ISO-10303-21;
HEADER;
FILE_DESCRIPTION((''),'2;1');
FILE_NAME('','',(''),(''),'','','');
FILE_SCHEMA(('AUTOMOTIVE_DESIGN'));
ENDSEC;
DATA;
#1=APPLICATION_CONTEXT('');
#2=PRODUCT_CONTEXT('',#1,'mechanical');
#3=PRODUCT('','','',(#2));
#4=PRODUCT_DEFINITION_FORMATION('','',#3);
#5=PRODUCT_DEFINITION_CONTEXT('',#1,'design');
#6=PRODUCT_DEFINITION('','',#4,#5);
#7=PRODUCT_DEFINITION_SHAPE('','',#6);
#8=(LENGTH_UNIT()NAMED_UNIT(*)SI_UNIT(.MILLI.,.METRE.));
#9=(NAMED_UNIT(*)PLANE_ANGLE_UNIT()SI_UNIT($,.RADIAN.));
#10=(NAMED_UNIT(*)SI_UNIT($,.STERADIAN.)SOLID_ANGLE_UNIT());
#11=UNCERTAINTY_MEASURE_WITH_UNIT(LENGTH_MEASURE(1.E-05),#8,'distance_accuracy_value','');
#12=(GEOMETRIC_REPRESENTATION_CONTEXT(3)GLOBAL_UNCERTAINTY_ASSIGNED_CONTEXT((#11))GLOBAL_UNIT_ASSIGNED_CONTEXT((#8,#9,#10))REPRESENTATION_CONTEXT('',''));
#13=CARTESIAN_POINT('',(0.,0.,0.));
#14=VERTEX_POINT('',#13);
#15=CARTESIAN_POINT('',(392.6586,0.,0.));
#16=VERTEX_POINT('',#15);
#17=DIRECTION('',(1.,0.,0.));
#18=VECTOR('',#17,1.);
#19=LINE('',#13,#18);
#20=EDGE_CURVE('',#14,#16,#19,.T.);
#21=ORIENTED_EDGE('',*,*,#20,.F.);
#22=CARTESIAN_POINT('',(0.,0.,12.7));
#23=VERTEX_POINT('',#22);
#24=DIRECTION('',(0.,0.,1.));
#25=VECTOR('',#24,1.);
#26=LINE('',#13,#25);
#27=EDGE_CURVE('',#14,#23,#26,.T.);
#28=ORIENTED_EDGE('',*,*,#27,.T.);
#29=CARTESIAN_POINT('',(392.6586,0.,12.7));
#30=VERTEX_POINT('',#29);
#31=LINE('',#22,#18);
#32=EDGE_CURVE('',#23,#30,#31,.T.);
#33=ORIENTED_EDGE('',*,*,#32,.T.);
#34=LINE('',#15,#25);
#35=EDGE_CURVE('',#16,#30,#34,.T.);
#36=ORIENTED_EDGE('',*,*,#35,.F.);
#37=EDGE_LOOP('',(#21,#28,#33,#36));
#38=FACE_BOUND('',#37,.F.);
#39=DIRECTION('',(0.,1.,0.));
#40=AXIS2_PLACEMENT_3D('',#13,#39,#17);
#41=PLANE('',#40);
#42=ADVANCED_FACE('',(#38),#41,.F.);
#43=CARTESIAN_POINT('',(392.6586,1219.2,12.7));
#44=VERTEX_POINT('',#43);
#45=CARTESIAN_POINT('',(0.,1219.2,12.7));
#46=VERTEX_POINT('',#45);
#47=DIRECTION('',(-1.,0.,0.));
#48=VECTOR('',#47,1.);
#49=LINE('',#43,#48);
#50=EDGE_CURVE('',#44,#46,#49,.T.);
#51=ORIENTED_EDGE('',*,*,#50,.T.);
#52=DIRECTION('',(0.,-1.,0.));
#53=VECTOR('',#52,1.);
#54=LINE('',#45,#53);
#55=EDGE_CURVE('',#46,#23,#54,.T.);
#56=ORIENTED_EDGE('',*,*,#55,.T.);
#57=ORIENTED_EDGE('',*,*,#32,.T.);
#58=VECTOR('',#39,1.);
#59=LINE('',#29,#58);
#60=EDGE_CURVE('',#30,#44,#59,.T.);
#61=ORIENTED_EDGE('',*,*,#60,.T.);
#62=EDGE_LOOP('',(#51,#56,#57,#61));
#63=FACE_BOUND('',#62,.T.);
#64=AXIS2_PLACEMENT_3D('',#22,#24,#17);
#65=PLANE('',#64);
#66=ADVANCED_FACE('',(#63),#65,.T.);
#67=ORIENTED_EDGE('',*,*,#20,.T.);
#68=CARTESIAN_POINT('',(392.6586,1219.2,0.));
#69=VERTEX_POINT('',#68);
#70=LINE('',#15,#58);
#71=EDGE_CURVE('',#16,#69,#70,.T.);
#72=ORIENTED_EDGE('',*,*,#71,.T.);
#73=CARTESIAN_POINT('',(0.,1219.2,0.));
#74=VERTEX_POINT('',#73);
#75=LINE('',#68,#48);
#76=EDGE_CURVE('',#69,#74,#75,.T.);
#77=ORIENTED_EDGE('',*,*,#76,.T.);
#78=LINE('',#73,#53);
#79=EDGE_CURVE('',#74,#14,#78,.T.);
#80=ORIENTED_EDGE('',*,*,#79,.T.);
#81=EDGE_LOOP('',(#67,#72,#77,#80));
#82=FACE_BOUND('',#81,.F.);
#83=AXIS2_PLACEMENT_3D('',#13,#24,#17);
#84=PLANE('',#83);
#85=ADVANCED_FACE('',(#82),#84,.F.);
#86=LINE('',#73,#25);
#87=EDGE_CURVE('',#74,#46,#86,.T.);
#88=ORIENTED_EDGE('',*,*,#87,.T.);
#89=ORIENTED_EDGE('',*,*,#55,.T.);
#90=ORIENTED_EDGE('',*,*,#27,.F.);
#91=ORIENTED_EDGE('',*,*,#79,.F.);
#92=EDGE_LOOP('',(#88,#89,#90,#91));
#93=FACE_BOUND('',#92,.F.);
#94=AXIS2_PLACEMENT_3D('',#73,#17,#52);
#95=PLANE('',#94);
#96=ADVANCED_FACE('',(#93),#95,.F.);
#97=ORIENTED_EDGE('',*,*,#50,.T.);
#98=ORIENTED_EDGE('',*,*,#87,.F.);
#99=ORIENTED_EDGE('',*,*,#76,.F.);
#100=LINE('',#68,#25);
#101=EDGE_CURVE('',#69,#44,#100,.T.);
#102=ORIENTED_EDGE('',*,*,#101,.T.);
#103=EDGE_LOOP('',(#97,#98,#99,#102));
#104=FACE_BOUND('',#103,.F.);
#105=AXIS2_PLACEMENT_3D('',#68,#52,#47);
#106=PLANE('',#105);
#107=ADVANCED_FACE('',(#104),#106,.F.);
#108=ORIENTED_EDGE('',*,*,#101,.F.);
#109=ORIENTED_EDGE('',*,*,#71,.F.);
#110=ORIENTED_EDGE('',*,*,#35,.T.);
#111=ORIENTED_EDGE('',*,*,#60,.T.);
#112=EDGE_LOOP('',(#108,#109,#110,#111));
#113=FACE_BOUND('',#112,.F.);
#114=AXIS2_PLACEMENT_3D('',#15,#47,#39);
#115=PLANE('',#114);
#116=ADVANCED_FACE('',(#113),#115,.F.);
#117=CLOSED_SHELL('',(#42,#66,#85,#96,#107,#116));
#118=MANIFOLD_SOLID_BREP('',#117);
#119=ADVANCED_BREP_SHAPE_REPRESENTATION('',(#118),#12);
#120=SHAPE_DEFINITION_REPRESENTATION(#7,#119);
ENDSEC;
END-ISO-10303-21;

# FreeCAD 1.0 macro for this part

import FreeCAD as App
import Part
import Sketcher

V = App.Vector
Q = App.Units.Quantity


def add_polygon(sketch, points):
    """Adds a closed chain of lines whose ends are joined by coincident constraints."""
    first, n = sketch.GeometryCount, len(points)
    for a, b in zip(points, points[1:] + points[:1]):
        sketch.addGeometry(Part.LineSegment(App.Vector(*a, 0), App.Vector(*b, 0)), False)
    for i in range(n):
        sketch.addConstraint(Sketcher.Constraint("Coincident", first + i, 2, first + (i + 1) % n, 1))

doc = App.newDocument("Part")
body = doc.addObject("PartDesign::Body", "Body")

# Sketch on XY plane
sketch1 = body.newObject("Sketcher::SketchObject", "Sketch")
sketch1.AttachmentSupport = (doc.getObject("XY_Plane"), [""])
sketch1.MapMode = "FlatFace"
add_polygon(sketch1, [(0, 1219), (0, 0), (393, 0), (393, 1219)])  # lines 0-3
sketch1.addConstraint([
    Sketcher.Constraint("Vertical", 0),
    Sketcher.Constraint("Horizontal", 1),
    Sketcher.Constraint("Vertical", 2),
    Sketcher.Constraint("Horizontal", 3),
    Sketcher.Constraint("Coincident", 0, 2, -1, 1),
    Sketcher.Constraint("DistanceY", 0, 2, 0, 1, Q("48 in")),
    Sketcher.Constraint("DistanceX", 1, 1, 1, 2, Q("15.459 in")),
])
pad1 = body.newObject("PartDesign::Pad", "Pad")
pad1.Profile = sketch1
pad1.Length = Q("0.5 in")

doc.recompute()
